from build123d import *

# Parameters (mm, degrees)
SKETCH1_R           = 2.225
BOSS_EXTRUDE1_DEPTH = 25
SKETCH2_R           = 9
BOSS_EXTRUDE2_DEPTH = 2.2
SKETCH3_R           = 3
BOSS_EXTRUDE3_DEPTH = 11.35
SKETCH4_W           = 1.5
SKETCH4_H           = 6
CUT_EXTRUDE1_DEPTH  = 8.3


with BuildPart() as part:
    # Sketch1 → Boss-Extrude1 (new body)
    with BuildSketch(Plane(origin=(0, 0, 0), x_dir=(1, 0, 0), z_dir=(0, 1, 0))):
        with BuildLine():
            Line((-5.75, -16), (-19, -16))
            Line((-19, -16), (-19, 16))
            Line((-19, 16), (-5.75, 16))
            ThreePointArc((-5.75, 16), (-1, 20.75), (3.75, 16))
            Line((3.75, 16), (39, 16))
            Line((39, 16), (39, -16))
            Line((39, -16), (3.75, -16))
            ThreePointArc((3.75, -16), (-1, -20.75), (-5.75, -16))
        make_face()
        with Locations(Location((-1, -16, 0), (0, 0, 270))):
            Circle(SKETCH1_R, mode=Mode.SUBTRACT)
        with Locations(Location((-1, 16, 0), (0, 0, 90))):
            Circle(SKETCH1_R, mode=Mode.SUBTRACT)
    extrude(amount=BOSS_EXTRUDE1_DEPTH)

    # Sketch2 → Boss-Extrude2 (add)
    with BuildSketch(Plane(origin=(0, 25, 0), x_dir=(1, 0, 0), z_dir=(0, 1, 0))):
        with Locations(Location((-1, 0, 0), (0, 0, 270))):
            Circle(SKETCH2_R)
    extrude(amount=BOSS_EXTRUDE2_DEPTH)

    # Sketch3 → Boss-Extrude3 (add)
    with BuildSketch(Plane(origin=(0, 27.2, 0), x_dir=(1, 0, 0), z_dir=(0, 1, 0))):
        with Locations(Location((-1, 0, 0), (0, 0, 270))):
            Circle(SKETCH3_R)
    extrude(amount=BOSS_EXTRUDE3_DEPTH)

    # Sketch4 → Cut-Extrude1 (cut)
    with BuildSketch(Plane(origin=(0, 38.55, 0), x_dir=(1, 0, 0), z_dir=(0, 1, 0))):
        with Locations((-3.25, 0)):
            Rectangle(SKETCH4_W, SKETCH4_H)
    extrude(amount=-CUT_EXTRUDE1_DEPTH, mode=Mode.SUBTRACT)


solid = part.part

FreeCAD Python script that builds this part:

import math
import FreeCAD as App
import Part
import Sketcher
Q = App.Units.Quantity

doc = App.newDocument("Part")
params = doc.addObject("Spreadsheet::Sheet", "Params")
for row, (alias, value) in enumerate([
    ("sketch1_diameter", "4.45 mm"),
    ("sketch1_height", "32 mm"),
    ("sketch1_radius", "4.75 mm"),
    ("pad1_length", "25 mm"),
    ("sketch2_diameter", "18 mm"),
    ("pad2_length", "2.2 mm"),
    ("sketch3_diameter", "6 mm"),
    ("pad3_length", "11.35 mm"),
    ("sketch4_height", "6 mm"),
    ("sketch4_width", "1.5 mm"),
    ("pocket1_length", "8.3 mm"),
], start=1):
    params.set(f"A{row}", alias)
    params.set(f"B{row}", "=" + value)
    params.setAlias(f"B{row}", alias)

body = doc.addObject("PartDesign::Body", "Body")

# Sketch on XZ plane
sketch1 = doc.addObject("Sketcher::SketchObject", "Sketch")
body.addObject(sketch1)
sketch1.AttachmentSupport = (doc.XZ_Plane, [""])
sketch1.MapMode = "FlatFace"
sketch1.addGeometry([
    Part.LineSegment(App.Vector(-19, 16, 0), App.Vector(-5.75, 16, 0)),  # 0
    Part.ArcOfCircle(Part.Circle(App.Vector(-1, 16, 0), App.Vector(0, 0, 1), 4.75), math.radians(0), math.radians(180)),  # 1
    Part.LineSegment(App.Vector(3.75, 16, 0), App.Vector(39, 16, 0)),  # 2
    Part.LineSegment(App.Vector(39, 16, 0), App.Vector(39, -16, 0)),  # 3
    Part.LineSegment(App.Vector(39, -16, 0), App.Vector(3.75, -16, 0)),  # 4
    Part.ArcOfCircle(Part.Circle(App.Vector(-1, -16, 0), App.Vector(0, 0, 1), 4.75), math.radians(180), math.radians(360)),  # 5
    Part.LineSegment(App.Vector(-5.75, -16, 0), App.Vector(-19, -16, 0)),  # 6
    Part.LineSegment(App.Vector(-19, -16, 0), App.Vector(-19, 16, 0)),  # 7
    Part.Circle(App.Vector(-1, 16, 0), App.Vector(0, 0, 1), 2.225),  # 8
    Part.Circle(App.Vector(-1, -16, 0), App.Vector(0, 0, 1), 2.225),  # 9
], False)
sketch1.addConstraint([
    Sketcher.Constraint("Coincident", 0, 2, 1, 2),
    Sketcher.Constraint("Coincident", 1, 1, 2, 1),
    Sketcher.Constraint("Coincident", 2, 2, 3, 1),
    Sketcher.Constraint("Coincident", 3, 2, 4, 1),
    Sketcher.Constraint("Coincident", 4, 2, 5, 2),
    Sketcher.Constraint("Coincident", 5, 1, 6, 1),
    Sketcher.Constraint("Coincident", 6, 2, 7, 1),
    Sketcher.Constraint("Coincident", 7, 2, 0, 1),
    Sketcher.Constraint("Horizontal", 0),
    Sketcher.Constraint("Horizontal", 2),
    Sketcher.Constraint("Vertical", 3),
    Sketcher.Constraint("Horizontal", 4),
    Sketcher.Constraint("Horizontal", 6),
    Sketcher.Constraint("Vertical", 7),
    Sketcher.Constraint("Coincident", 8, 3, 1, 3),
    Sketcher.Constraint("Coincident", 9, 3, 5, 3),
    Sketcher.Constraint("Equal", 1, 5),
    Sketcher.Constraint("Equal", 8, 9),
    Sketcher.Constraint("Symmetric", 1, 3, 5, 3, -1),
    Sketcher.Constraint("Horizontal", 8, 3, 0, 2),
    Sketcher.Constraint("Horizontal", 0, 2, 1, 1),
    Sketcher.Constraint("Horizontal", 9, 3, 3, 2),
    Sketcher.Constraint("Horizontal", 4, 2, 5, 1),
    Sketcher.Constraint("Diameter", 8, Q("4.45 mm")),
    Sketcher.Constraint("DistanceY", 3, 2, 3, 1, Q("32 mm")),
    Sketcher.Constraint("Radius", 1, Q("4.75 mm")),
    Sketcher.Constraint("DistanceX", 1, 3, -1, 1, Q("1 mm")),
    Sketcher.Constraint("DistanceX", -1, 1, 2, 2, Q("39 mm")),
    Sketcher.Constraint("DistanceX", 6, 2, -1, 1, Q("19 mm")),
])
sketch1.setExpression("Constraints[23]", "Params.sketch1_diameter")
sketch1.setExpression("Constraints[24]", "Params.sketch1_height")
sketch1.setExpression("Constraints[25]", "Params.sketch1_radius")
pad1 = doc.addObject("PartDesign::Pad", "Pad")
body.addObject(pad1)
pad1.Profile = sketch1
pad1.setExpression("Length", "Params.pad1_length")
pad1.Reversed = True

# Sketch on XZ plane
sketch2 = doc.addObject("Sketcher::SketchObject", "Sketch001")
body.addObject(sketch2)
sketch2.AttachmentSupport = (doc.XZ_Plane, [""])
sketch2.MapMode = "FlatFace"
sketch2.AttachmentOffset = App.Placement(App.Vector(0, 0, -25), App.Rotation())
sketch2.addGeometry(Part.Circle(App.Vector(-1, 0, 0), App.Vector(0, 0, 1), 9), False)
sketch2.addConstraint([
    Sketcher.Constraint("PointOnObject", 0, 3, -1),
    Sketcher.Constraint("Diameter", 0, Q("18 mm")),
    Sketcher.Constraint("DistanceX", 0, 3, -1, 1, Q("1 mm")),
])
sketch2.setExpression("Constraints[1]", "Params.sketch2_diameter")
pad2 = doc.addObject("PartDesign::Pad", "Pad001")
body.addObject(pad2)
pad2.Profile = sketch2
pad2.setExpression("Length", "Params.pad2_length")
pad2.Reversed = True

# Sketch on XZ plane
sketch3 = doc.addObject("Sketcher::SketchObject", "Sketch002")
body.addObject(sketch3)
sketch3.AttachmentSupport = (doc.XZ_Plane, [""])
sketch3.MapMode = "FlatFace"
sketch3.AttachmentOffset = App.Placement(App.Vector(0, 0, -27.2), App.Rotation())
sketch3.addGeometry(Part.Circle(App.Vector(-1, 0, 0), App.Vector(0, 0, 1), 3), False)
sketch3.addConstraint([
    Sketcher.Constraint("PointOnObject", 0, 3, -1),
    Sketcher.Constraint("Diameter", 0, Q("6 mm")),
    Sketcher.Constraint("DistanceX", 0, 3, -1, 1, Q("1 mm")),
])
sketch3.setExpression("Constraints[1]", "Params.sketch3_diameter")
pad3 = doc.addObject("PartDesign::Pad", "Pad002")
body.addObject(pad3)
pad3.Profile = sketch3
pad3.setExpression("Length", "Params.pad3_length")
pad3.Reversed = True

# Sketch on XZ plane
sketch4 = doc.addObject("Sketcher::SketchObject", "Sketch003")
body.addObject(sketch4)
sketch4.AttachmentSupport = (doc.XZ_Plane, [""])
sketch4.MapMode = "FlatFace"
sketch4.AttachmentOffset = App.Placement(App.Vector(0, 0, -38.55), App.Rotation())
sketch4.addGeometry([
    Part.LineSegment(App.Vector(-4, -3, 0), App.Vector(-4, 3, 0)),
    Part.LineSegment(App.Vector(-4, 3, 0), App.Vector(-2.5, 3, 0)),
    Part.LineSegment(App.Vector(-2.5, 3, 0), App.Vector(-2.5, -3, 0)),
    Part.LineSegment(App.Vector(-2.5, -3, 0), App.Vector(-4, -3, 0)),
], False)
sketch4.addConstraint([
    Sketcher.Constraint("Coincident", 0, 2, 1, 1),
    Sketcher.Constraint("Coincident", 1, 2, 2, 1),
    Sketcher.Constraint("Coincident", 2, 2, 3, 1),
    Sketcher.Constraint("Coincident", 3, 2, 0, 1),
    Sketcher.Constraint("Vertical", 0),
    Sketcher.Constraint("Horizontal", 1),
    Sketcher.Constraint("Vertical", 2),
    Sketcher.Constraint("Horizontal", 3),
    Sketcher.Constraint("DistanceY", 0, 1, 0, 2, Q("6 mm")),
    Sketcher.Constraint("DistanceX", 1, 1, 1, 2, Q("1.5 mm")),
    Sketcher.Constraint("DistanceX", 0, 2, -1, 1, Q("4 mm")),
    Sketcher.Constraint("DistanceY", -1, 1, 0, 2, Q("3 mm")),
])
sketch4.setExpression("Constraints[8]", "Params.sketch4_height")
sketch4.setExpression("Constraints[9]", "Params.sketch4_width")
pocket1 = doc.addObject("PartDesign::Pocket", "Pocket")
body.addObject(pocket1)
pocket1.Profile = sketch4
pocket1.setExpression("Length", "Params.pocket1_length")
pocket1.Reversed = True

doc.recompute()
